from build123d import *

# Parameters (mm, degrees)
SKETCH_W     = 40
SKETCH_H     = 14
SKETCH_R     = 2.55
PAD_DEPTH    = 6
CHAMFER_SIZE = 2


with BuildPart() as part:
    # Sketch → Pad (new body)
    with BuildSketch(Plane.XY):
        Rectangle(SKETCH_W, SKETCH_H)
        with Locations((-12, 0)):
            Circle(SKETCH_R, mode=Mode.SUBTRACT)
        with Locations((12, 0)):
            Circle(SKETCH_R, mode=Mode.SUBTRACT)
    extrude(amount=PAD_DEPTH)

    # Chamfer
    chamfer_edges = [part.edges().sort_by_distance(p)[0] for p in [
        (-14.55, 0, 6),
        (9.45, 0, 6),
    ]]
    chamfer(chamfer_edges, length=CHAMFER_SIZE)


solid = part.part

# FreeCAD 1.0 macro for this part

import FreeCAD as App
import Part
import Sketcher


def edges_at(feature, points):
    """Names of the edges that pass closest to the given points."""
    edges = feature.Shape.Edges
    near = lambda p: min(range(len(edges)), key=lambda i: edges[i].distToShape(Part.Vertex(*p))[0])
    return sorted({f"Edge{near(p) + 1}" for p in points})

doc = App.newDocument("Part")
body = doc.addObject("PartDesign::Body", "Body")

sketch1 = doc.addObject("Sketcher::SketchObject", "Sketch")
body.addObject(sketch1)
sketch1.AttachmentSupport = (doc.XY_Plane, [""])
sketch1.MapMode = "FlatFace"
sketch1.addGeometry(Part.LineSegment(App.Vector(-20, 7, 0), App.Vector(-20, -7, 0)), False)
sketch1.addGeometry(Part.LineSegment(App.Vector(-20, -7, 0), App.Vector(20, -7, 0)), False)
sketch1.addGeometry(Part.LineSegment(App.Vector(20, -7, 0), App.Vector(20, 7, 0)), False)
sketch1.addGeometry(Part.LineSegment(App.Vector(20, 7, 0), App.Vector(-20, 7, 0)), False)
sketch1.addGeometry(Part.Circle(App.Vector(-12, 0, 0), App.Vector(0, 0, 1), 2.5), False)
sketch1.addGeometry(Part.Circle(App.Vector(12, 0, 0), App.Vector(0, 0, 1), 2.5), False)
sketch1.addConstraint(Sketcher.Constraint("Coincident", 0, 2, 1, 1))
sketch1.addConstraint(Sketcher.Constraint("Coincident", 1, 2, 2, 1))
sketch1.addConstraint(Sketcher.Constraint("Coincident", 2, 2, 3, 1))
sketch1.addConstraint(Sketcher.Constraint("Coincident", 3, 2, 0, 1))
sketch1.addConstraint(Sketcher.Constraint("Vertical", 0))
sketch1.addConstraint(Sketcher.Constraint("Horizontal", 1))
sketch1.addConstraint(Sketcher.Constraint("Vertical", 2))
sketch1.addConstraint(Sketcher.Constraint("Horizontal", 3))
sketch1.addConstraint(Sketcher.Constraint("Equal", 4, 5))
sketch1.addConstraint(Sketcher.Constraint("Symmetric", 4, 3, 5, 3, -1, 1))
sketch1.addConstraint(Sketcher.Constraint("Symmetric", 0, 2, 2, 2, -1, 1))
sketch1.addConstraint(Sketcher.Constraint("PointOnObject", 4, 3, -1))
sketch1.addConstraint(Sketcher.Constraint("Diameter", 4, 5.1))
sketch1.addConstraint(Sketcher.Constraint("DistanceX", 1, 1, 1, 2, 40.0))
sketch1.addConstraint(Sketcher.Constraint("DistanceY", 0, 2, 0, 1, 14.0))
sketch1.addConstraint(Sketcher.Constraint("DistanceX", 4, 3, -1, 1, 12.0))
pad1 = doc.addObject("PartDesign::Pad", "Pad")
body.addObject(pad1)
pad1.Profile = sketch1
pad1.Length = 6
doc.recompute()

chamfer = doc.addObject("PartDesign::Chamfer", "Chamfer")
body.addObject(chamfer)
chamfer.Base = (pad1, edges_at(pad1, [(-14.55, 0, 6), (9.45, 0, 6)]))
chamfer.Size = 2

doc.recompute()
